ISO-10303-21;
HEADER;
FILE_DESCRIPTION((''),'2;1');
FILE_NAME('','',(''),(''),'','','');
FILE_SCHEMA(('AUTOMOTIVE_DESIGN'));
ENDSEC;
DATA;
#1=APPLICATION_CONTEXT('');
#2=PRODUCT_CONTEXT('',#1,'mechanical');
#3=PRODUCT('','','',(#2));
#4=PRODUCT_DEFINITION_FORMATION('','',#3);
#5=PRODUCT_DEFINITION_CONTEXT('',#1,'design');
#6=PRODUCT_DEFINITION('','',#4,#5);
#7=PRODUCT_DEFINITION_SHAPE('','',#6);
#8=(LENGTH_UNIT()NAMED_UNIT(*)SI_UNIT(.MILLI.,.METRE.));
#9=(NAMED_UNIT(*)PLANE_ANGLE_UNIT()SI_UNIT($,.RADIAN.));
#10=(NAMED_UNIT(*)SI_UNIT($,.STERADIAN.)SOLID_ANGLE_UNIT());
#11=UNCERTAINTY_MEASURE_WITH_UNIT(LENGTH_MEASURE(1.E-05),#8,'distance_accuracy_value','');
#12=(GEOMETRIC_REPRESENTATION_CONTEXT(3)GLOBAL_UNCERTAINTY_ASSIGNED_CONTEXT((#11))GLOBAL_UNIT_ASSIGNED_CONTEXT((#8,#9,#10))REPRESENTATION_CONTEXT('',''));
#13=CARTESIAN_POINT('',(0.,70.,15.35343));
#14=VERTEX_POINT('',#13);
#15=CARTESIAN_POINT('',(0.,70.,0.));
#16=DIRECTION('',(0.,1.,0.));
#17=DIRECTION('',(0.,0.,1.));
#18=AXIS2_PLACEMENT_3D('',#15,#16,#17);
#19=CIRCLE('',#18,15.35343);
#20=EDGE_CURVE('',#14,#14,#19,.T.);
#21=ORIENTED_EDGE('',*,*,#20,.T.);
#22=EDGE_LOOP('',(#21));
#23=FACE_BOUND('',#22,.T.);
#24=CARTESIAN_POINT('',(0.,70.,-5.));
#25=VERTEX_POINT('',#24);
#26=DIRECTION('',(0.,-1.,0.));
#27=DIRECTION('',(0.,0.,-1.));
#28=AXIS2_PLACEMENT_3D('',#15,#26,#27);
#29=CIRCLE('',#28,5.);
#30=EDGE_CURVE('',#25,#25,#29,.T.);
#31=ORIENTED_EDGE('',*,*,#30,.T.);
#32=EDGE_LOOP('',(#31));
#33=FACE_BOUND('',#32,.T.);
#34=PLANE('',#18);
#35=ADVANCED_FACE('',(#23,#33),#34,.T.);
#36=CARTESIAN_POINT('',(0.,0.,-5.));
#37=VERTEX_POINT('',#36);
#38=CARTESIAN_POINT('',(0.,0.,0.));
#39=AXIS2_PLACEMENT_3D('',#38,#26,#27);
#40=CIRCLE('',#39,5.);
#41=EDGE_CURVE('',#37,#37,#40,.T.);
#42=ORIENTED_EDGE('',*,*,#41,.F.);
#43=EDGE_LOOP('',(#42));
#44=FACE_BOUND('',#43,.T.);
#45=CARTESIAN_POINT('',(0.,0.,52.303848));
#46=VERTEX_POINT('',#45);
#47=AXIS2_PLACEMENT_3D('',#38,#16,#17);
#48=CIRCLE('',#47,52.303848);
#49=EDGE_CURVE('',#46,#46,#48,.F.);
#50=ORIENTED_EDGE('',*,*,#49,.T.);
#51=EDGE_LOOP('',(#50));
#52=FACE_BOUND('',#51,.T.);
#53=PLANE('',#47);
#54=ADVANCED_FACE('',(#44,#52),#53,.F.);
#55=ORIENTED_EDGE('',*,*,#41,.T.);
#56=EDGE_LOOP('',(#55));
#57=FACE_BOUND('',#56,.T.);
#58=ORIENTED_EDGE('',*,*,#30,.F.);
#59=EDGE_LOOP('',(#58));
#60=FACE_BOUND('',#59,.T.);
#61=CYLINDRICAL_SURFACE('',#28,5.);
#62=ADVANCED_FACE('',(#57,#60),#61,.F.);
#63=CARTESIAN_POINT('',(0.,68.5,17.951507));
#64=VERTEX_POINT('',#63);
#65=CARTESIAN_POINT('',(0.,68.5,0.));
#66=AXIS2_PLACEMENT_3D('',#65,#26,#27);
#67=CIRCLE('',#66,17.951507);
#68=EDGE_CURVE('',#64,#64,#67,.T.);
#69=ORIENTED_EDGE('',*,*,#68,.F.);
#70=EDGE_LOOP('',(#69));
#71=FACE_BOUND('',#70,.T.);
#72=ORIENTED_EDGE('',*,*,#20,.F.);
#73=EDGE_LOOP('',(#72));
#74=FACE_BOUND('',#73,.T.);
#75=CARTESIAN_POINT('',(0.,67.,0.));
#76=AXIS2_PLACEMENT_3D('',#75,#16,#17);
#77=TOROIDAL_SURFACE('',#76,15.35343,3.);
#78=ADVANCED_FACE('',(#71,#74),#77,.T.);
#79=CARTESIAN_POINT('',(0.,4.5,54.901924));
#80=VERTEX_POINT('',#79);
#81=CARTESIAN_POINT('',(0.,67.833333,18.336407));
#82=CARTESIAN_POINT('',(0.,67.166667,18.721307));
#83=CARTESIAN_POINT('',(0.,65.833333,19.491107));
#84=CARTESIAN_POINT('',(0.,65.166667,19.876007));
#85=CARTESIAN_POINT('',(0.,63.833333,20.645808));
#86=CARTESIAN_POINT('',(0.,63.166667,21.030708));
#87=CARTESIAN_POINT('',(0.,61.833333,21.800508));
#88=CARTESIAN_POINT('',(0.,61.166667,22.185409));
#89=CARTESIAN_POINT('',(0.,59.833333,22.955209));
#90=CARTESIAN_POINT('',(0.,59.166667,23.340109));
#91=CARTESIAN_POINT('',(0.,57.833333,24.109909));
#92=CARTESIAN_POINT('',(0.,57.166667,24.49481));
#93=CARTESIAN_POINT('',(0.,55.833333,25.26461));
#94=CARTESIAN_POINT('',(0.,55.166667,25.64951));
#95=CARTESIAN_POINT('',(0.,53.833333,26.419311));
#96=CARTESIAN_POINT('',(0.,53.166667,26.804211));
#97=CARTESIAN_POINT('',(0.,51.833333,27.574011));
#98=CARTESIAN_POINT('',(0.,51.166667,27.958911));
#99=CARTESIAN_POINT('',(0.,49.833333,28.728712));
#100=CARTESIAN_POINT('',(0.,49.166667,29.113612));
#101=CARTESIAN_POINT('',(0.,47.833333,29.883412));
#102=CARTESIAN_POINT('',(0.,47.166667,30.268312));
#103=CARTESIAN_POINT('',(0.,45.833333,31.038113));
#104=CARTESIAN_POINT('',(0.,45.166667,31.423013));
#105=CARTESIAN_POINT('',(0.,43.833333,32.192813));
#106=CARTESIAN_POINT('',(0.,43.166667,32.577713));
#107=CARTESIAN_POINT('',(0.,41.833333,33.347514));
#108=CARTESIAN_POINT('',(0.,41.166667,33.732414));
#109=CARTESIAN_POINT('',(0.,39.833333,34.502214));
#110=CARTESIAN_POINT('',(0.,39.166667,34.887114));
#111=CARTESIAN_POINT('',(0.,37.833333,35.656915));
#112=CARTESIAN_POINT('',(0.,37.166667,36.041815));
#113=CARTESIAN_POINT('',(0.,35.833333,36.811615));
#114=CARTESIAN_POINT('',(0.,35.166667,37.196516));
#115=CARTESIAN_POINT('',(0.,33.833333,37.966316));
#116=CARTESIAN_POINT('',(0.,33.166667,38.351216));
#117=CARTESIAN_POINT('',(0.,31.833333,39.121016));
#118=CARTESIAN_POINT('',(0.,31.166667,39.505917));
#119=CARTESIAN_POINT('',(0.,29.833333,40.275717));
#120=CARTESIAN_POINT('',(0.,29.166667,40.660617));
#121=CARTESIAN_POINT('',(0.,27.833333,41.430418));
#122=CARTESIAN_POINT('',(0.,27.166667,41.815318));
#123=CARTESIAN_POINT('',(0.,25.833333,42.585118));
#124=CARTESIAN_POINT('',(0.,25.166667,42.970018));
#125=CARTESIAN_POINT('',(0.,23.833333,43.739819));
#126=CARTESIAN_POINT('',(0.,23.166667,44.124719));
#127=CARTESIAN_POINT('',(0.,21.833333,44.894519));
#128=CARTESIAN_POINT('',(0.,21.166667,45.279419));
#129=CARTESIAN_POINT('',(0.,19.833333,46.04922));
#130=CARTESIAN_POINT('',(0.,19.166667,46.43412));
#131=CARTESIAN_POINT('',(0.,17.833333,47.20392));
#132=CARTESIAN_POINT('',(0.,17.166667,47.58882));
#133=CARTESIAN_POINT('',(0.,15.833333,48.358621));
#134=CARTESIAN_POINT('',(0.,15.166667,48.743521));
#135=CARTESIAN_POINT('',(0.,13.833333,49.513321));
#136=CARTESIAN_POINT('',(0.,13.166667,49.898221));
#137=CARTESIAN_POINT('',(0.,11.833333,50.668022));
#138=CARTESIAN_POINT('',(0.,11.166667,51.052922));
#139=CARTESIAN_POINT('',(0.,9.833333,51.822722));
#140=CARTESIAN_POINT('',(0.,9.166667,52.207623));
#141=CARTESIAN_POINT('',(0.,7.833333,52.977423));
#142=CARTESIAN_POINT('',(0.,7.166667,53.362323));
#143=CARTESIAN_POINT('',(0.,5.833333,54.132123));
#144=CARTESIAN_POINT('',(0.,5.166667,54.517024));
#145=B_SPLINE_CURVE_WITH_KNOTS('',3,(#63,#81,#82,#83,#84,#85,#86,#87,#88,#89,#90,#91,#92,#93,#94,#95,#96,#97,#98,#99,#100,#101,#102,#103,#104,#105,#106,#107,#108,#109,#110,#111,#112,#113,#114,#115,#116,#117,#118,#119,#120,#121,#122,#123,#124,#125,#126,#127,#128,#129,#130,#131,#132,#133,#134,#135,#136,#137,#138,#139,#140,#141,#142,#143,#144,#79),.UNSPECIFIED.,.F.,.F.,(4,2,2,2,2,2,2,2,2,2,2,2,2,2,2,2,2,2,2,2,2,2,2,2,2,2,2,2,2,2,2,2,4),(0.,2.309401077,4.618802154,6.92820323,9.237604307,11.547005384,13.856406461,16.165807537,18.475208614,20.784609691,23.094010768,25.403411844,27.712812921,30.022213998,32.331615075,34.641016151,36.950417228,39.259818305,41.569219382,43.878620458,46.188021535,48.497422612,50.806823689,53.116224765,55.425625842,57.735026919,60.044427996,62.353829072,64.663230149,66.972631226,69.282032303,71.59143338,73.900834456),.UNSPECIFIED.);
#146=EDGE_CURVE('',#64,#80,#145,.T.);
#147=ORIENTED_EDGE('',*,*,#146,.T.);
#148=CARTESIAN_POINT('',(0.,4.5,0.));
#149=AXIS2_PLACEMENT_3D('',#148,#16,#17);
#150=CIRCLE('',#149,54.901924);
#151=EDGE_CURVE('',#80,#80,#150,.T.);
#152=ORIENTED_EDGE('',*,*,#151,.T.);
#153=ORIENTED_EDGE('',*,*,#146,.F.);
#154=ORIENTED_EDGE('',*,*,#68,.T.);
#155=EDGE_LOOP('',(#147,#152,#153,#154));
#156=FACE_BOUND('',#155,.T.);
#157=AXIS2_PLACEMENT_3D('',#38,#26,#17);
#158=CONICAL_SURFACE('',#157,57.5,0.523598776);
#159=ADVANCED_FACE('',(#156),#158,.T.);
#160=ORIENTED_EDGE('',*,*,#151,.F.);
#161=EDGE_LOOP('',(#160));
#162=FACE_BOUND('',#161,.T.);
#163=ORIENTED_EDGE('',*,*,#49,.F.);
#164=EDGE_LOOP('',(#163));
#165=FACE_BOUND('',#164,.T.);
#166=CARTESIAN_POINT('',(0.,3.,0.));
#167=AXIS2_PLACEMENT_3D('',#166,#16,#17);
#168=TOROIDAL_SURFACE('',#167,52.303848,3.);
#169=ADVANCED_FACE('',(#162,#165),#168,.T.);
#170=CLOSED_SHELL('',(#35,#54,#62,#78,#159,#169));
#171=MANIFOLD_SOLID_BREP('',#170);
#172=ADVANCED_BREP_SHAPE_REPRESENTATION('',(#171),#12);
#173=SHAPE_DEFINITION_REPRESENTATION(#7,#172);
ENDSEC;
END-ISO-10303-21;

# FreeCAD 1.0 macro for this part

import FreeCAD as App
import Part
import Sketcher

V = App.Vector
Q = App.Units.Quantity


def edges_at(feature, points):
    """Names of the edges that pass closest to the given points."""
    edges = feature.Shape.Edges
    near = lambda p: min(range(len(edges)), key=lambda i: edges[i].distToShape(Part.Vertex(*p))[0])
    return sorted({f"Edge{near(p) + 1}" for p in points})

doc = App.newDocument("Part")
body = doc.addObject("PartDesign::Body", "Body")

# Sketch on XZ plane
sketch1 = doc.addObject("Sketcher::SketchObject", "Sketch")
body.addObject(sketch1)
sketch1.AttachmentSupport = (doc.XZ_Plane, [""])
sketch1.MapMode = "FlatFace"
sketch1.addGeometry(Part.Circle(V(0, 0, 0), V(0, 0, 1), 58), False)
sketch1.addConstraint(Sketcher.Constraint("Coincident", 0, 3, -1, 1))
sketch1.addConstraint(Sketcher.Constraint("Diameter", 0, Q("115 mm")))
pad1 = doc.addObject("PartDesign::Pad", "Pad")
body.addObject(pad1)
pad1.Profile = sketch1
pad1.Length = 70
pad1.Reversed = True
pad1.TaperAngle = -30

# Sketch on XZ plane
sketch2 = doc.addObject("Sketcher::SketchObject", "Sketch001")
body.addObject(sketch2)
sketch2.AttachmentSupport = (doc.XZ_Plane, [""])
sketch2.MapMode = "FlatFace"
sketch2.addGeometry(Part.Circle(V(0, 0, 0), V(0, 0, 1), 5), False)
sketch2.addConstraint(Sketcher.Constraint("Coincident", 0, 3, -1, 1))
sketch2.addConstraint(Sketcher.Constraint("Diameter", 0, Q("10 mm")))
pocket1 = doc.addObject("PartDesign::Pocket", "Pocket")
body.addObject(pocket1)
pocket1.Profile = sketch2
pocket1.Type = "ThroughAll"
doc.recompute()

fillet = doc.addObject("PartDesign::Fillet", "Fillet")
body.addObject(fillet)
fillet.Base = (pocket1, edges_at(pocket1, [(-57.5, 0, 0), (-17.085, 70, 0)]))
fillet.Radius = 3

doc.recompute()
